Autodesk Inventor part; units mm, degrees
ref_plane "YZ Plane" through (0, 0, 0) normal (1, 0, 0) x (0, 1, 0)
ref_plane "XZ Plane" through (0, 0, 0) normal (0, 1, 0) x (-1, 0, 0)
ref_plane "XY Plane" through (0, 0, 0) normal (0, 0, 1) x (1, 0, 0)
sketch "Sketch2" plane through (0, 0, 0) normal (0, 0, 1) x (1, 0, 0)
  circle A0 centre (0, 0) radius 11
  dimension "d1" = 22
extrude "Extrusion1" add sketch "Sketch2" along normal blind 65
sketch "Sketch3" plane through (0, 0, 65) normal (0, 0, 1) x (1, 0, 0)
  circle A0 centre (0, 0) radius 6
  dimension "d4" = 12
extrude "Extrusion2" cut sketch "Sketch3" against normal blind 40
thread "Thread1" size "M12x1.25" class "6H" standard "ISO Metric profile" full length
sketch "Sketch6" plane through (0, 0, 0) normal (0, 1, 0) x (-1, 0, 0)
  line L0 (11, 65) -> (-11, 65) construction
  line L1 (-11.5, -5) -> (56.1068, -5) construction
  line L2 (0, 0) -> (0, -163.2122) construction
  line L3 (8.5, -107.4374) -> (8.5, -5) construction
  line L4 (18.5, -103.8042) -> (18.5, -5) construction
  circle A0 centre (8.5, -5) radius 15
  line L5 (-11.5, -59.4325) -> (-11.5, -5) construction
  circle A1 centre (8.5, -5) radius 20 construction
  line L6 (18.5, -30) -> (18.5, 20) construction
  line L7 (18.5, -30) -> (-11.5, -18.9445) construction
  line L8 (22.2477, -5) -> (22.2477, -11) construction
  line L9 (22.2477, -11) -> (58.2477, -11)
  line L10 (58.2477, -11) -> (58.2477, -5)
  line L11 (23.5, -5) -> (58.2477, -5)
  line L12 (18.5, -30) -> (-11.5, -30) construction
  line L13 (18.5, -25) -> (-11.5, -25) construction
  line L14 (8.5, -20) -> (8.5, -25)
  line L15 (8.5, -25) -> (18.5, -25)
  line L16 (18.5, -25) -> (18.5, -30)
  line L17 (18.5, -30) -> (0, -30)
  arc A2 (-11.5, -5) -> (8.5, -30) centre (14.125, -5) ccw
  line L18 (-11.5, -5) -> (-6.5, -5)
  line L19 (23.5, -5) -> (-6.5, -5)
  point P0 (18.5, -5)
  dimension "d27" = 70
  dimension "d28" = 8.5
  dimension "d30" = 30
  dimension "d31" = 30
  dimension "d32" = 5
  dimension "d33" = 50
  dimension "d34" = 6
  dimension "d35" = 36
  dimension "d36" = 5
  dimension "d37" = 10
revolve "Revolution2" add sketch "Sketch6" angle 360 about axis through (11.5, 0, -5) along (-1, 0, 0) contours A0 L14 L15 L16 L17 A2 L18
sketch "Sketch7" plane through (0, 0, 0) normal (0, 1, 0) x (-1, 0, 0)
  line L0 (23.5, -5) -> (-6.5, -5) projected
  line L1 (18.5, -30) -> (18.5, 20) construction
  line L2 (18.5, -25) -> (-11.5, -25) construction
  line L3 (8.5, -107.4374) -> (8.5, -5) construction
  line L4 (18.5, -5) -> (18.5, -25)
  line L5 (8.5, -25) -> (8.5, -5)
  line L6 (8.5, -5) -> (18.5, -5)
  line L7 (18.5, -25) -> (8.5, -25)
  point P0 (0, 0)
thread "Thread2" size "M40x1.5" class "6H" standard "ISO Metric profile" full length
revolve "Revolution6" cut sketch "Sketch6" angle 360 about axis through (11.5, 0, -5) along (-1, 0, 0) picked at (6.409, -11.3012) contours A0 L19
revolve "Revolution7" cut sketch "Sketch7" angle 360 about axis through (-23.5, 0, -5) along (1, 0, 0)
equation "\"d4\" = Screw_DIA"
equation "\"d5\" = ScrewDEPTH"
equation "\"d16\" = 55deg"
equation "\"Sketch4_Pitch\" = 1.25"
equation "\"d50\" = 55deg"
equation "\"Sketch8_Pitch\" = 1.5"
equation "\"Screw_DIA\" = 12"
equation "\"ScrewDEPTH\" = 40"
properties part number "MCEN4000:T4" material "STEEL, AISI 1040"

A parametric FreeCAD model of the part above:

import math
import FreeCAD as App
import Part
import Sketcher

V = App.Vector
Q = App.Units.Quantity

doc = App.newDocument("Part")
params = doc.addObject("Spreadsheet::Sheet", "Params")
for row, (alias, value) in enumerate([
    ("sketch1_diameter", "22 mm"),
    ("pad1_length", "65 mm"),
    ("sketch2_diameter", "12 mm"),
    ("pocket1_length", "40 mm"),
    ("sketch3_radius", "15 mm"),
    ("sketch3_width", "5 mm"),
    ("sketch3_width2", "10 mm"),
    ("revolution_angle", "360 deg"),
    ("sketch4_radius", "15 mm"),
    ("groove_angle", "360 deg"),
    ("sketch5_width", "10 mm"),
    ("sketch5_height", "20 mm"),
    ("groove2_angle", "360 deg"),
], start=1):
    params.set(f"A{row}", alias)
    params.set(f"B{row}", "=" + value)
    params.setAlias(f"B{row}", alias)

body = doc.addObject("PartDesign::Body", "Body")

# Sketch on XY plane
sketch1 = body.newObject("Sketcher::SketchObject", "Sketch")
sketch1.AttachmentSupport = (doc.getObject("XY_Plane"), [""])
sketch1.MapMode = "FlatFace"
sketch1.addGeometry(Part.Circle(V(0, 0, 0), V(0, 0, 1), 11), False)
sketch1.addConstraint([
    Sketcher.Constraint("Coincident", 0, 3, -1, 1),
    Sketcher.Constraint("Diameter", 0, Q("22 mm")),
])
sketch1.setExpression("Constraints[1]", "Params.sketch1_diameter")
pad1 = body.newObject("PartDesign::Pad", "Pad")
pad1.Profile = sketch1
pad1.setExpression("Length", "Params.pad1_length")

# Sketch on XY plane
sketch2 = body.newObject("Sketcher::SketchObject", "Sketch001")
sketch2.AttachmentSupport = (doc.getObject("XY_Plane"), [""])
sketch2.MapMode = "FlatFace"
sketch2.AttachmentOffset = App.Placement(V(0, 0, 65), App.Rotation())
sketch2.addGeometry(Part.Circle(V(0, 0, 0), V(0, 0, 1), 6), False)
sketch2.addConstraint([
    Sketcher.Constraint("Coincident", 0, 3, -1, 1),
    Sketcher.Constraint("Diameter", 0, Q("12 mm")),
])
sketch2.setExpression("Constraints[1]", "Params.sketch2_diameter")
pocket1 = body.newObject("PartDesign::Pocket", "Pocket")
pocket1.Profile = sketch2
pocket1.setExpression("Length", "Params.pocket1_length")

# Sketch on XZ plane
sketch3 = body.newObject("Sketcher::SketchObject", "Sketch002")
sketch3.AttachmentSupport = (doc.getObject("XZ_Plane"), [""])
sketch3.MapMode = "FlatFace"
sketch3.addGeometry([
    Part.ArcOfCircle(Part.Circle(V(-8, -5, 0), V(0, 0, 1), 15), math.radians(-90), math.radians(0)),  # 0
    Part.LineSegment(V(6, -5, 0), V(12, -5, 0)),  # 1
    Part.ArcOfCircle(Part.Circle(V(-14, -5, 0), V(0, 0, 1), 26), math.radians(-77), math.radians(0)),  # 2
    Part.LineSegment(V(-8, -30, 0), V(-18, -30, 0)),  # 3
    Part.LineSegment(V(-18, -30, 0), V(-18, -25, 0)),  # 4
    Part.LineSegment(V(-18, -25, 0), V(-8, -25, 0)),  # 5
    Part.LineSegment(V(-8, -25, 0), V(-8, -20, 0)),  # 6
], False)
sketch3.addGeometry(Part.LineSegment(V(12, -5, 0), V(-18, -5, 0)), True)  # axis
sketch3.addConstraint([
    Sketcher.Constraint("Coincident", 0, 2, 1, 1),
    Sketcher.Constraint("Coincident", 1, 2, 2, 2),
    Sketcher.Constraint("Coincident", 2, 1, 3, 1),
    Sketcher.Constraint("Coincident", 3, 2, 4, 1),
    Sketcher.Constraint("Coincident", 4, 2, 5, 1),
    Sketcher.Constraint("Coincident", 5, 2, 6, 1),
    Sketcher.Constraint("Coincident", 6, 2, 0, 1),
    Sketcher.Constraint("Horizontal", 1),
    Sketcher.Constraint("Horizontal", 3),
    Sketcher.Constraint("Vertical", 4),
    Sketcher.Constraint("Horizontal", 5),
    Sketcher.Constraint("Vertical", 6),
    Sketcher.Constraint("Horizontal", 7),
    Sketcher.Constraint("Coincident", 7, 1, 1, 2),
    Sketcher.Constraint("Horizontal", 0, 3, 2, 3),
    Sketcher.Constraint("Horizontal", 2, 3, 0, 2),
    Sketcher.Constraint("Vertical", 0, 3, 2, 1),
    Sketcher.Constraint("Vertical", 2, 1, 5, 2),
    Sketcher.Constraint("Vertical", 4, 2, 7, 2),
    Sketcher.Constraint("Equal", 1, 4),
    Sketcher.Constraint("Equal", 4, 6),
    Sketcher.Constraint("Radius", 0, Q("15 mm")),
    Sketcher.Constraint("DistanceX", 1, 1, 1, 2, Q("5 mm")),
    Sketcher.Constraint("DistanceX", 3, 2, 3, 1, Q("10 mm")),
    Sketcher.Constraint("DistanceY", 0, 3, -1, 1, Q("5 mm")),
    Sketcher.Constraint("DistanceX", 0, 3, -1, 1, Q("8.5 mm")),
])
sketch3.setExpression("Constraints[21]", "Params.sketch3_radius")
sketch3.setExpression("Constraints[22]", "Params.sketch3_width")
sketch3.setExpression("Constraints[23]", "Params.sketch3_width2")
revolution = body.newObject("PartDesign::Revolution", "Revolution")
revolution.Profile = sketch3
revolution.ReferenceAxis = (sketch3, ["Axis0"])
revolution.setExpression("Angle", "Params.revolution_angle")

# Sketch on XZ plane
sketch4 = body.newObject("Sketcher::SketchObject", "Sketch003")
sketch4.AttachmentSupport = (doc.getObject("XZ_Plane"), [""])
sketch4.MapMode = "FlatFace"
sketch4.addGeometry([
    Part.ArcOfCircle(Part.Circle(V(-8, -5, 0), V(0, 0, 1), 15), math.radians(180), math.radians(360)),
    Part.LineSegment(V(-24, -5, 0), V(6, -5, 0)),
], False)
sketch4.addGeometry(Part.LineSegment(V(6, -5, 0), V(-24, -5, 0)), True)  # axis
sketch4.addConstraint([
    Sketcher.Constraint("Coincident", 0, 1, 1, 1),
    Sketcher.Constraint("Coincident", 1, 2, 0, 2),
    Sketcher.Constraint("Horizontal", 1),
    Sketcher.Constraint("Horizontal", 2),
    Sketcher.Constraint("Coincident", 2, 1, 1, 2),
    Sketcher.Constraint("Equal", 1, 2),
    Sketcher.Constraint("Radius", 0, Q("15 mm")),
    Sketcher.Constraint("DistanceY", 0, 3, -1, 1, Q("5 mm")),
    Sketcher.Constraint("DistanceY", 0, 1, -1, 1, Q("5 mm")),
    Sketcher.Constraint("DistanceX", 0, 3, -1, 1, Q("8.5 mm")),
])
sketch4.setExpression("Constraints[6]", "Params.sketch4_radius")
groove = body.newObject("PartDesign::Groove", "Groove")
groove.Profile = sketch4
groove.ReferenceAxis = (sketch4, ["Axis0"])
groove.setExpression("Angle", "Params.groove_angle")

# Sketch on XZ plane
sketch5 = body.newObject("Sketcher::SketchObject", "Sketch004")
sketch5.AttachmentSupport = (doc.getObject("XZ_Plane"), [""])
sketch5.MapMode = "FlatFace"
sketch5.addGeometry([
    Part.LineSegment(V(-18, -25, 0), V(-18, -5, 0)),
    Part.LineSegment(V(-18, -5, 0), V(-8, -5, 0)),
    Part.LineSegment(V(-8, -5, 0), V(-8, -25, 0)),
    Part.LineSegment(V(-8, -25, 0), V(-18, -25, 0)),
], False)
sketch5.addGeometry(Part.LineSegment(V(-18, -5, 0), V(-8, -5, 0)), True)  # axis
sketch5.addConstraint([
    Sketcher.Constraint("Coincident", 0, 2, 1, 1),
    Sketcher.Constraint("Coincident", 1, 2, 2, 1),
    Sketcher.Constraint("Coincident", 2, 2, 3, 1),
    Sketcher.Constraint("Coincident", 3, 2, 0, 1),
    Sketcher.Constraint("Vertical", 0),
    Sketcher.Constraint("Horizontal", 1),
    Sketcher.Constraint("Vertical", 2),
    Sketcher.Constraint("Horizontal", 3),
    Sketcher.Constraint("Horizontal", 4),
    Sketcher.Constraint("Coincident", 4, 1, 0, 2),
    Sketcher.Constraint("Vertical", 2, 2, 4, 2),
    Sketcher.Constraint("DistanceX", 1, 1, 1, 2, Q("10 mm")),
    Sketcher.Constraint("DistanceY", 0, 1, 0, 2, Q("20 mm")),
    Sketcher.Constraint("DistanceY", 0, 2, -1, 1, Q("5 mm")),
    Sketcher.Constraint("DistanceX", 0, 2, -1, 1, Q("18.5 mm")),
])
sketch5.setExpression("Constraints[11]", "Params.sketch5_width")
sketch5.setExpression("Constraints[12]", "Params.sketch5_height")
groove2 = body.newObject("PartDesign::Groove", "Groove001")
groove2.Profile = sketch5
groove2.ReferenceAxis = (sketch5, ["Axis0"])
groove2.setExpression("Angle", "Params.groove2_angle")

doc.recompute()
